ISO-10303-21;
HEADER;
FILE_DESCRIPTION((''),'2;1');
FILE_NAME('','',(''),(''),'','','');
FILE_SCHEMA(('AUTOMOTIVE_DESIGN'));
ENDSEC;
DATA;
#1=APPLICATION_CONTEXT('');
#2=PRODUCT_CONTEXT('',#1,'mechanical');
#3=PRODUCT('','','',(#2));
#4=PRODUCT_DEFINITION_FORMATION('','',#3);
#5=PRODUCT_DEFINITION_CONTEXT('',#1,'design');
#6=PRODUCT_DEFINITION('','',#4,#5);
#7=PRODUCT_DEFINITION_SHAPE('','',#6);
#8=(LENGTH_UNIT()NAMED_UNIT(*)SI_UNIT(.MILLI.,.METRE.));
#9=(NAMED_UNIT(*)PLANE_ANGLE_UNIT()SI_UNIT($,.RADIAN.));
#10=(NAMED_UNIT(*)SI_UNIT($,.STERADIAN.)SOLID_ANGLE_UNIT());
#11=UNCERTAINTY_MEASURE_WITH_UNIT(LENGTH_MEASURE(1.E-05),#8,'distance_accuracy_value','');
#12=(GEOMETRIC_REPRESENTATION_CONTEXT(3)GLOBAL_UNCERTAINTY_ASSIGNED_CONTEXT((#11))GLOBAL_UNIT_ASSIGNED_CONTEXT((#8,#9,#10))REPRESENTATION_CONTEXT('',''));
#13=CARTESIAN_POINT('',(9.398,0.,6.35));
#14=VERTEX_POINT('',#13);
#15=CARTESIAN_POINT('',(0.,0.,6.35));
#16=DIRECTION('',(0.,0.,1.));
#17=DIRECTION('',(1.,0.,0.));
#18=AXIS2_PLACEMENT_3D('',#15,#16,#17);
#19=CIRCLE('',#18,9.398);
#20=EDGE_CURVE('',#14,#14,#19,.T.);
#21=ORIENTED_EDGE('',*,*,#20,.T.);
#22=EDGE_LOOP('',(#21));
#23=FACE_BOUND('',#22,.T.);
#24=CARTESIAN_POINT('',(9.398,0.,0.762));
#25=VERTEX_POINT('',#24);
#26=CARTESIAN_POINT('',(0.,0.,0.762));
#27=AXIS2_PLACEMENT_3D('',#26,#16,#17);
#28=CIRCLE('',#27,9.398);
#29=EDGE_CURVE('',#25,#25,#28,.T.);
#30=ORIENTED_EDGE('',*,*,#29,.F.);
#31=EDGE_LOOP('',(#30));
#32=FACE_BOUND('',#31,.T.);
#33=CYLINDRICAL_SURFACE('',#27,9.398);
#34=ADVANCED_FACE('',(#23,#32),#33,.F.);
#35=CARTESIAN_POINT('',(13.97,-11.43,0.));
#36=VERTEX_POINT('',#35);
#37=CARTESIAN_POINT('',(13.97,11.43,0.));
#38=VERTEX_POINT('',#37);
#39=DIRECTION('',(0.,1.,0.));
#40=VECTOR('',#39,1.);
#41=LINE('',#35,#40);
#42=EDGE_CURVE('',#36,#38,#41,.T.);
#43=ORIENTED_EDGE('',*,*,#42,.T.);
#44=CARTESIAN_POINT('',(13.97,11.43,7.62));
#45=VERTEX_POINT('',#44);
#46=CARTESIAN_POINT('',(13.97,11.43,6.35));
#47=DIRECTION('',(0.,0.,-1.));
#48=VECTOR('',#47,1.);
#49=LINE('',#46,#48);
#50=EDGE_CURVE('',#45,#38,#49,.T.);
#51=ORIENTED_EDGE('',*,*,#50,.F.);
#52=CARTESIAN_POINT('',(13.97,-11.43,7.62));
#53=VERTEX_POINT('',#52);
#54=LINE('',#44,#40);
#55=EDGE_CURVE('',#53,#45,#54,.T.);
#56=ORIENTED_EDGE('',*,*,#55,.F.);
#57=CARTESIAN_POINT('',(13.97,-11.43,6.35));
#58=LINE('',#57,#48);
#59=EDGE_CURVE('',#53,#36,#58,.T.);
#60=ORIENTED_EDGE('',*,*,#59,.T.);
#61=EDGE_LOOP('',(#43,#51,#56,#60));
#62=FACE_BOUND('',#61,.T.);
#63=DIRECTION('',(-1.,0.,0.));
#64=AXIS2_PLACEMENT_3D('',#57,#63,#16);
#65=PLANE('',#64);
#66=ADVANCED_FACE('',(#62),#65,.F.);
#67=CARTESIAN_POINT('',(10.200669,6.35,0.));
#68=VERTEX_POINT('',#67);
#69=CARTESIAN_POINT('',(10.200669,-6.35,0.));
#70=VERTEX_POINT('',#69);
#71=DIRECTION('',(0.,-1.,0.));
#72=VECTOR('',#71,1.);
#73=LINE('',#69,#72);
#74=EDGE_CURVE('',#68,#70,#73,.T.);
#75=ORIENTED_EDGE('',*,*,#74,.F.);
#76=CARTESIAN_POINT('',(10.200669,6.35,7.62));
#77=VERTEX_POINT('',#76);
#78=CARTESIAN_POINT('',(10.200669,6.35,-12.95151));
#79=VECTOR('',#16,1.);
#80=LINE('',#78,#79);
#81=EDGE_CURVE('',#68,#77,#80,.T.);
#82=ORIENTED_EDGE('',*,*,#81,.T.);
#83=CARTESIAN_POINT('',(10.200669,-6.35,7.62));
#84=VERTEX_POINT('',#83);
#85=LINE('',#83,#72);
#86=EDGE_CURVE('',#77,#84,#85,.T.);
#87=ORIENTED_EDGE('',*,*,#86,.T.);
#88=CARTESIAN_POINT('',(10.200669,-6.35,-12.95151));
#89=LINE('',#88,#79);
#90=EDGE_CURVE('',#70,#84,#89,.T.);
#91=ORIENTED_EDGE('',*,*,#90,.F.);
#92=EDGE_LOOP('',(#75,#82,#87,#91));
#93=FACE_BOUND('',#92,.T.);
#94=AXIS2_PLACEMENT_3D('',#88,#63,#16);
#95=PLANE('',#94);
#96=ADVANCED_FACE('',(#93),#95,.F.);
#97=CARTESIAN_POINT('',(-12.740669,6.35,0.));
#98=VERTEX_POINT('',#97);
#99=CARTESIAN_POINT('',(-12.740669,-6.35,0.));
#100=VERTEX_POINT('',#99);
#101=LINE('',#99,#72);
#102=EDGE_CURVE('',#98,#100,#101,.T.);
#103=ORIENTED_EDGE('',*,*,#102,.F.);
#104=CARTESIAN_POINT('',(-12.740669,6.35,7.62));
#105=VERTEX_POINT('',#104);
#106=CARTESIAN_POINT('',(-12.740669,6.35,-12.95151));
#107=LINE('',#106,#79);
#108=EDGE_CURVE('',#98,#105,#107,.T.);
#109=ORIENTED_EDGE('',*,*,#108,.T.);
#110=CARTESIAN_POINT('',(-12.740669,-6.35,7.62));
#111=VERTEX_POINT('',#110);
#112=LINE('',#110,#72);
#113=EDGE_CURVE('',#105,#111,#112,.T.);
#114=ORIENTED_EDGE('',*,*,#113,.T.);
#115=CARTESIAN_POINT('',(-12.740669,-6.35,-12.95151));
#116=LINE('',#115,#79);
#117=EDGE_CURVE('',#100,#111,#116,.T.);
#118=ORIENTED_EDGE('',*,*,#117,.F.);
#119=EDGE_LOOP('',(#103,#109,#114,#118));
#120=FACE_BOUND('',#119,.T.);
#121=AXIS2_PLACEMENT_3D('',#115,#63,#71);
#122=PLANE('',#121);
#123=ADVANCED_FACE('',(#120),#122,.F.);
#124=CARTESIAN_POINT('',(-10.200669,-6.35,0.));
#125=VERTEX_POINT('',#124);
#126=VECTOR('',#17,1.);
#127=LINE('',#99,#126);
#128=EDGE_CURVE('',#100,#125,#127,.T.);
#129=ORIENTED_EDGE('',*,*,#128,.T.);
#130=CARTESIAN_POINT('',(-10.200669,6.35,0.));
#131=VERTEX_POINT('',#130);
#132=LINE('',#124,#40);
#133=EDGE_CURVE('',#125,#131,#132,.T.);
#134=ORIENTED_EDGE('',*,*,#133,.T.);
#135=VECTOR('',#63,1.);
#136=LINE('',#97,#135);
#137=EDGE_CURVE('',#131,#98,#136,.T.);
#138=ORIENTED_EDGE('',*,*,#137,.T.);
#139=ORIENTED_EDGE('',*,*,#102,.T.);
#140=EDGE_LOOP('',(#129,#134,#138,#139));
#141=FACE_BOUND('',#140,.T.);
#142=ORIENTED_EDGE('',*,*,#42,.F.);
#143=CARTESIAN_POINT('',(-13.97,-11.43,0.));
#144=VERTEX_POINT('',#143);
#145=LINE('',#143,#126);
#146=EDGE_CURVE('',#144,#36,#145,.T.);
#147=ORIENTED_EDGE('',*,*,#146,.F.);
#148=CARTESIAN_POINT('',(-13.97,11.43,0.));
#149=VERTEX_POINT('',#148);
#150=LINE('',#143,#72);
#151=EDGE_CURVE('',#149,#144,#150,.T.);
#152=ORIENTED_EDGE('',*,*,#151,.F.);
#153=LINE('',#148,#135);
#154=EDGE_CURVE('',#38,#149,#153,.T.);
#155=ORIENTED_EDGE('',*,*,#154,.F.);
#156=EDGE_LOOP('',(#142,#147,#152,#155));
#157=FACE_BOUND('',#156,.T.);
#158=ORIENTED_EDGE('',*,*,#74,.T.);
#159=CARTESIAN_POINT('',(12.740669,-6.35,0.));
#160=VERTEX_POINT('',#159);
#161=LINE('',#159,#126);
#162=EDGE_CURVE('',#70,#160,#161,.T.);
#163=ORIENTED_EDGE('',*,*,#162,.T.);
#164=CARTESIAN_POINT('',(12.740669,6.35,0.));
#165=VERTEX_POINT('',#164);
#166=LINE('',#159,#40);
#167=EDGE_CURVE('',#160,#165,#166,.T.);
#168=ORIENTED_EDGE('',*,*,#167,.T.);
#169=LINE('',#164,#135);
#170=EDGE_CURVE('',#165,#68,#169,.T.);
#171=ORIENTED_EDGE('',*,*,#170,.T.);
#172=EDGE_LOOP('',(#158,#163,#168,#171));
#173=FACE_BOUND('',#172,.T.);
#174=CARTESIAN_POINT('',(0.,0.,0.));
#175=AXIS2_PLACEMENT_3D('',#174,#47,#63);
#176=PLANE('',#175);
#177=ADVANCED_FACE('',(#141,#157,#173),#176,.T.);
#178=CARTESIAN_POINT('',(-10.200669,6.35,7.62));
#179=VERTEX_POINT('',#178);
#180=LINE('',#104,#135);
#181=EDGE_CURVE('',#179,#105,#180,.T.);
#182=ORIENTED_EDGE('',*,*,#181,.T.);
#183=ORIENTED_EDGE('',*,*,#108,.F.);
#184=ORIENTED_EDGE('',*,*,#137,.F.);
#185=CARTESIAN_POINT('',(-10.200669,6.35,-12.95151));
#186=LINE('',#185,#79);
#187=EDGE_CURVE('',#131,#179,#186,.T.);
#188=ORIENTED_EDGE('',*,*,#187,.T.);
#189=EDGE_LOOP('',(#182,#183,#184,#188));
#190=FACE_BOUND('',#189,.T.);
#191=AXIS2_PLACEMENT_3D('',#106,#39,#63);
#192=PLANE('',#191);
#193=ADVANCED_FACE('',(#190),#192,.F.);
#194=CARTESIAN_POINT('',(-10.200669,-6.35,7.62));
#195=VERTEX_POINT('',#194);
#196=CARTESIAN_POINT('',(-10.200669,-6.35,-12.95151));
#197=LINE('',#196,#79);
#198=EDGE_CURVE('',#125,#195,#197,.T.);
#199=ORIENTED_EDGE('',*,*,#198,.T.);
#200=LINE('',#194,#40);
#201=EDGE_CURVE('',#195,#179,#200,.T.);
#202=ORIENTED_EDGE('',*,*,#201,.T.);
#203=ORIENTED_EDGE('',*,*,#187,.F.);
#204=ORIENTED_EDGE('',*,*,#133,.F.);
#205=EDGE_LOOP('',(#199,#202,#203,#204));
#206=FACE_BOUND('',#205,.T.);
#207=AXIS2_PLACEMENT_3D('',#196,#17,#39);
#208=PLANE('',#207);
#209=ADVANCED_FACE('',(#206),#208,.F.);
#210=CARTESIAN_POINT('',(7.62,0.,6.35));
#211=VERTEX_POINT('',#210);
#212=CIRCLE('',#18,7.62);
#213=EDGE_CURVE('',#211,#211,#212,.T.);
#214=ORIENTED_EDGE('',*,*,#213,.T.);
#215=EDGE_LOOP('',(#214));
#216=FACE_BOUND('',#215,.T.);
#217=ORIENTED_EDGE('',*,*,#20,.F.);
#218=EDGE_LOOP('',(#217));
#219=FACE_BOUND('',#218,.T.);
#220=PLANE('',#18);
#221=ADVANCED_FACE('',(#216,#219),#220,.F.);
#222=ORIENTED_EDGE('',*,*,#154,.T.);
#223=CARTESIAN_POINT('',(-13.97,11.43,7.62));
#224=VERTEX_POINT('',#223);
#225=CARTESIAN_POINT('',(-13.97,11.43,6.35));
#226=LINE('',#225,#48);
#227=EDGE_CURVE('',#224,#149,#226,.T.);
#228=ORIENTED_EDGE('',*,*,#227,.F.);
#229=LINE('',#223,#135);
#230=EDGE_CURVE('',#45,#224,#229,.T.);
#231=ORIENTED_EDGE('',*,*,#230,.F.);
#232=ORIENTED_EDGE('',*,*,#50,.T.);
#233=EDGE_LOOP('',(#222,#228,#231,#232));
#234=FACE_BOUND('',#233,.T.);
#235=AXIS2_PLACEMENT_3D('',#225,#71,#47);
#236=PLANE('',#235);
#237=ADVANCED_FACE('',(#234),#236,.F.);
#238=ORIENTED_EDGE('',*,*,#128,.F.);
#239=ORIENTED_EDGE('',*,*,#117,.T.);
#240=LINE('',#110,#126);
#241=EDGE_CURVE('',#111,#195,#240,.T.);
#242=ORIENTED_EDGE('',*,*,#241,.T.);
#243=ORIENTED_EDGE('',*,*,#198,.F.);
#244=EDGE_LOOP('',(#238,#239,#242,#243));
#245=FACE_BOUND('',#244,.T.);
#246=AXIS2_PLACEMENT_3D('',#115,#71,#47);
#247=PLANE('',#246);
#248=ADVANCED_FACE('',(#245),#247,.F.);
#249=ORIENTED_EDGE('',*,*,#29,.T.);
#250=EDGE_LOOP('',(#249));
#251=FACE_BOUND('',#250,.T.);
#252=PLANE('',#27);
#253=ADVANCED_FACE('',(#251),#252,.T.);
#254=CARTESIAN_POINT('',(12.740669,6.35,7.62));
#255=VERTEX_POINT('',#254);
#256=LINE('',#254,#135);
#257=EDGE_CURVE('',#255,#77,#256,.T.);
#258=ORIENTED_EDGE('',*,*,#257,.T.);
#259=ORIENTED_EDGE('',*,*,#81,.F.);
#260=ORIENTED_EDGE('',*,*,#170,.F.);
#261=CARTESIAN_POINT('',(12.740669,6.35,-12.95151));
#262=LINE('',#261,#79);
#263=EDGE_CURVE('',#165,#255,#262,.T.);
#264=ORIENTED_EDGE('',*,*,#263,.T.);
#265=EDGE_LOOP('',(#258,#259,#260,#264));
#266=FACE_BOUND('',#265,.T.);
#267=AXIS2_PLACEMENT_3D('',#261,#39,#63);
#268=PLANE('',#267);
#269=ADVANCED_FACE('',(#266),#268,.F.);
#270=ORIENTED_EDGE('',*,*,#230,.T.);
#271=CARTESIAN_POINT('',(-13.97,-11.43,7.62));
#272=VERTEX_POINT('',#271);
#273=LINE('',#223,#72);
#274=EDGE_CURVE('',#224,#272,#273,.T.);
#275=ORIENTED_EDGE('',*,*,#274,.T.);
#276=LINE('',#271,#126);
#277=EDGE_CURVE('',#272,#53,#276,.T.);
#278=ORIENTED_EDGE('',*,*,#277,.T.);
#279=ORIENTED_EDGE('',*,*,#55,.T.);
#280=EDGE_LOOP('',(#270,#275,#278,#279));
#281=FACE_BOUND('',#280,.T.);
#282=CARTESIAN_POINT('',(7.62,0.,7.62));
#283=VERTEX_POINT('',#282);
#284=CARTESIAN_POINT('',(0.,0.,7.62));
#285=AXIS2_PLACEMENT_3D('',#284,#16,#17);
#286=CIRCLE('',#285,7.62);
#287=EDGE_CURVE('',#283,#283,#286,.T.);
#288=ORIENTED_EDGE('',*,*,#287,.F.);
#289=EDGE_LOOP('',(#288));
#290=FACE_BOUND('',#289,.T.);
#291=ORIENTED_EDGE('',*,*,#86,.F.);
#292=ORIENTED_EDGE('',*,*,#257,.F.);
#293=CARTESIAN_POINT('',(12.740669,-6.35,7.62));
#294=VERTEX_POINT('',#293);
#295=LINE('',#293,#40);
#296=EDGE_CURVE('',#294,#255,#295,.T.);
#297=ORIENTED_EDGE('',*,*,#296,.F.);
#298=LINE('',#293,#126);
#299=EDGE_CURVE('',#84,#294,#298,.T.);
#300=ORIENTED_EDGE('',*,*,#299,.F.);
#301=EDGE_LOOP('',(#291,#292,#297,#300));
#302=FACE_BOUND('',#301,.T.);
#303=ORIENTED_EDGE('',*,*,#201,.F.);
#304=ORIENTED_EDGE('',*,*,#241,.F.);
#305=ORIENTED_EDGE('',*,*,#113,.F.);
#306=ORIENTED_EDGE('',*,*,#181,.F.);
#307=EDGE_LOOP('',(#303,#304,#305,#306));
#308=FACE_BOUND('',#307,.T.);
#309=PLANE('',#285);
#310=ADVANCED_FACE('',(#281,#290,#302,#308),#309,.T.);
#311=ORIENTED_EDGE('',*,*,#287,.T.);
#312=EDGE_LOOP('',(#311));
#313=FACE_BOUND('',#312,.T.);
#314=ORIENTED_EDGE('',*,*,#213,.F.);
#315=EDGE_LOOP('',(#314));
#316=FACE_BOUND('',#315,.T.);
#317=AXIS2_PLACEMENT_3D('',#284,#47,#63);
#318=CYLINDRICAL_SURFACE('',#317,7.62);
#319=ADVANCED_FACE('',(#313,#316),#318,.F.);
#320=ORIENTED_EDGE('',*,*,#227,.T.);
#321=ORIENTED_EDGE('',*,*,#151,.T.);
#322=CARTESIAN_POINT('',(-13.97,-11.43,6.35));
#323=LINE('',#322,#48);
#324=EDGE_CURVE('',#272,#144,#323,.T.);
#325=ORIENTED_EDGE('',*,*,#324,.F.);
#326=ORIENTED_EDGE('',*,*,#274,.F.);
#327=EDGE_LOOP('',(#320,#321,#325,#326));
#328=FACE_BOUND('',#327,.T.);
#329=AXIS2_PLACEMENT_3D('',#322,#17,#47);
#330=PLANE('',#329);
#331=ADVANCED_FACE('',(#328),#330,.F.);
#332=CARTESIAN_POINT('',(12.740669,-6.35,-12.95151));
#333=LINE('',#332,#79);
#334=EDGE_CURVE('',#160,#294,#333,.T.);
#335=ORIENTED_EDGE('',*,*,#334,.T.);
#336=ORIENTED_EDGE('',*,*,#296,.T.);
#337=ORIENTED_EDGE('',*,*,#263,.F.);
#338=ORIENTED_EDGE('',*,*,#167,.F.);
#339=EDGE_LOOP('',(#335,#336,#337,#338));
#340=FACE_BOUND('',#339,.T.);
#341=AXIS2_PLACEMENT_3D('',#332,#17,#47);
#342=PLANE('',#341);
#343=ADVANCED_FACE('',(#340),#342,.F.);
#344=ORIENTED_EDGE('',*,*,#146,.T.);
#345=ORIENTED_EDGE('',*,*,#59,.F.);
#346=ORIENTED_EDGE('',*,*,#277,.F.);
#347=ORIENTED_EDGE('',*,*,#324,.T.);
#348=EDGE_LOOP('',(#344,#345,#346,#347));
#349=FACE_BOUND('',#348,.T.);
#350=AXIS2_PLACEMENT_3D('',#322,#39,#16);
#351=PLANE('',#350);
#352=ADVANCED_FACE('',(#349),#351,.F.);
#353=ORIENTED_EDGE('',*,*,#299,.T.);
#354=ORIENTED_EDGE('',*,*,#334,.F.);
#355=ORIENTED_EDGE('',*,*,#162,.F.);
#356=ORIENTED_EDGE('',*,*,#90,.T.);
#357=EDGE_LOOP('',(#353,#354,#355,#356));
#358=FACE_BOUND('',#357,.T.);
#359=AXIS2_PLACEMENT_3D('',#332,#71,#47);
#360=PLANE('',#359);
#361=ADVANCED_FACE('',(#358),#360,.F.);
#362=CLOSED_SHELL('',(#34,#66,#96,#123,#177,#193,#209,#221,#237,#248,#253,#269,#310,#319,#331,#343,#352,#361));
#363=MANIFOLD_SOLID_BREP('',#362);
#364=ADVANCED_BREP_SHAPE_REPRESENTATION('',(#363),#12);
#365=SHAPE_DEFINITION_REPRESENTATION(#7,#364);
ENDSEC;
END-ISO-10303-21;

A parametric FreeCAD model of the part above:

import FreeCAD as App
import Part
import Sketcher

V = App.Vector
Q = App.Units.Quantity


def add_polygon(sketch, points):
    """Adds a closed chain of lines whose ends are joined by coincident constraints."""
    first, n = sketch.GeometryCount, len(points)
    for a, b in zip(points, points[1:] + points[:1]):
        sketch.addGeometry(Part.LineSegment(App.Vector(*a, 0), App.Vector(*b, 0)), False)
    for i in range(n):
        sketch.addConstraint(Sketcher.Constraint("Coincident", first + i, 2, first + (i + 1) % n, 1))

doc = App.newDocument("Part")
params = doc.addObject("Spreadsheet::Sheet", "Params")
for row, (alias, value) in enumerate([
    ("sketch1_width", "1.1 in"),
    ("sketch1_height", "0.9 in"),
    ("pad1_length", "0.25 in"),
    ("sketch2_diameter", "0.74 in"),
    ("pocket1_length", "0.22 in"),
    ("sketch3_diameter", "0.6 in"),
    ("sketch3_width", "1.1 in"),
    ("sketch3_height", "0.9 in"),
    ("pad2_length", "0.05 in"),
    ("sketch4_width", "0.1 in"),
    ("sketch4_height", "0.5 in"),
    ("pocket2_length", "0.3 in"),
], start=1):
    params.set(f"A{row}", alias)
    params.set(f"B{row}", "=" + value)
    params.setAlias(f"B{row}", alias)

body = doc.addObject("PartDesign::Body", "Body")

# Sketch on XY plane
sketch1 = doc.addObject("Sketcher::SketchObject", "Sketch")
body.addObject(sketch1)
sketch1.AttachmentSupport = (doc.XY_Plane, [""])
sketch1.MapMode = "FlatFace"
add_polygon(sketch1, [(-14, 11), (-14, -11), (14, -11), (14, 11)])  # lines 0-3
sketch1.addConstraint([
    Sketcher.Constraint("Vertical", 0),
    Sketcher.Constraint("Horizontal", 1),
    Sketcher.Constraint("Vertical", 2),
    Sketcher.Constraint("Horizontal", 3),
    Sketcher.Constraint("Symmetric", 0, 2, 2, 2, -1, 1),
    Sketcher.Constraint("DistanceX", 1, 1, 1, 2, Q("1.1 in")),
    Sketcher.Constraint("DistanceY", 0, 2, 0, 1, Q("0.9 in")),
])
sketch1.setExpression("Constraints[9]", "Params.sketch1_width")
sketch1.setExpression("Constraints[10]", "Params.sketch1_height")
pad1 = doc.addObject("PartDesign::Pad", "Pad")
body.addObject(pad1)
pad1.Profile = sketch1
pad1.setExpression("Length", "Params.pad1_length")

# Sketch on XY plane
sketch2 = doc.addObject("Sketcher::SketchObject", "Sketch001")
body.addObject(sketch2)
sketch2.AttachmentSupport = (doc.XY_Plane, [""])
sketch2.MapMode = "FlatFace"
sketch2.AttachmentOffset = App.Placement(V(0, 0, 0.25 * 25.4), App.Rotation())
sketch2.addGeometry(Part.Circle(V(0, 0, 0), V(0, 0, 1), 9), False)
sketch2.addConstraint([
    Sketcher.Constraint("Coincident", 0, 3, -1, 1),
    Sketcher.Constraint("Diameter", 0, Q("0.74 in")),
])
sketch2.setExpression("Constraints[1]", "Params.sketch2_diameter")
pocket1 = doc.addObject("PartDesign::Pocket", "Pocket")
body.addObject(pocket1)
pocket1.Profile = sketch2
pocket1.setExpression("Length", "Params.pocket1_length")

# Sketch on XY plane
sketch3 = doc.addObject("Sketcher::SketchObject", "Sketch002")
body.addObject(sketch3)
sketch3.AttachmentSupport = (doc.XY_Plane, [""])
sketch3.MapMode = "FlatFace"
sketch3.AttachmentOffset = App.Placement(V(0, 0, 0.25 * 25.4), App.Rotation())
add_polygon(sketch3, [(-14, 11), (-14, -11), (14, -11), (14, 11)])  # lines 0-3
sketch3.addGeometry(Part.Circle(V(0, 0, 0), V(0, 0, 1), 8), False)  # 4
sketch3.addConstraint([
    Sketcher.Constraint("Vertical", 0),
    Sketcher.Constraint("Horizontal", 1),
    Sketcher.Constraint("Vertical", 2),
    Sketcher.Constraint("Horizontal", 3),
    Sketcher.Constraint("Coincident", 4, 3, -1, 1),
    Sketcher.Constraint("Symmetric", 0, 2, 2, 2, -1, 1),
    Sketcher.Constraint("Diameter", 4, Q("0.6 in")),
    Sketcher.Constraint("DistanceX", 1, 1, 1, 2, Q("1.1 in")),
    Sketcher.Constraint("DistanceY", 0, 2, 0, 1, Q("0.9 in")),
])
sketch3.setExpression("Constraints[10]", "Params.sketch3_diameter")
sketch3.setExpression("Constraints[11]", "Params.sketch3_width")
sketch3.setExpression("Constraints[12]", "Params.sketch3_height")
pad2 = doc.addObject("PartDesign::Pad", "Pad001")
body.addObject(pad2)
pad2.Profile = sketch3
pad2.setExpression("Length", "Params.pad2_length")

# Sketch on XY plane
sketch4 = doc.addObject("Sketcher::SketchObject", "Sketch003")
body.addObject(sketch4)
sketch4.AttachmentSupport = (doc.XY_Plane, [""])
sketch4.MapMode = "FlatFace"
sketch4.AttachmentOffset = App.Placement(V(0, 0, 0.3 * 25.4), App.Rotation())
add_polygon(sketch4, [(-12.7, 6.3), (-12.7, -6.3), (-10.2, -6.3), (-10.2, 6.3)])  # lines 0-3
add_polygon(sketch4, [(10.2, 6.3), (10.2, -6.3), (12.7, -6.3), (12.7, 6.3)])  # lines 4-7
sketch4.addConstraint([
    Sketcher.Constraint("Vertical", 0),
    Sketcher.Constraint("Horizontal", 1),
    Sketcher.Constraint("Vertical", 2),
    Sketcher.Constraint("Horizontal", 3),
    Sketcher.Constraint("Vertical", 4),
    Sketcher.Constraint("Horizontal", 5),
    Sketcher.Constraint("Vertical", 6),
    Sketcher.Constraint("Horizontal", 7),
    Sketcher.Constraint("Symmetric", 2, 2, 4, 2, -1, 1),
    Sketcher.Constraint("Symmetric", 0, 2, 6, 2, -1, 1),
    Sketcher.Constraint("Horizontal", 1, 2, 4, 2),
    Sketcher.Constraint("DistanceX", 1, 1, 1, 2, Q("0.1 in")),
    Sketcher.Constraint("DistanceY", 0, 2, 0, 1, Q("0.5 in")),
    Sketcher.Constraint("DistanceX", 0, 2, -1, 1, 12.740669),
])
sketch4.setExpression("Constraints[19]", "Params.sketch4_width")
sketch4.setExpression("Constraints[20]", "Params.sketch4_height")
pocket2 = doc.addObject("PartDesign::Pocket", "Pocket001")
body.addObject(pocket2)
pocket2.Profile = sketch4
pocket2.setExpression("Length", "Params.pocket2_length")

doc.recompute()
